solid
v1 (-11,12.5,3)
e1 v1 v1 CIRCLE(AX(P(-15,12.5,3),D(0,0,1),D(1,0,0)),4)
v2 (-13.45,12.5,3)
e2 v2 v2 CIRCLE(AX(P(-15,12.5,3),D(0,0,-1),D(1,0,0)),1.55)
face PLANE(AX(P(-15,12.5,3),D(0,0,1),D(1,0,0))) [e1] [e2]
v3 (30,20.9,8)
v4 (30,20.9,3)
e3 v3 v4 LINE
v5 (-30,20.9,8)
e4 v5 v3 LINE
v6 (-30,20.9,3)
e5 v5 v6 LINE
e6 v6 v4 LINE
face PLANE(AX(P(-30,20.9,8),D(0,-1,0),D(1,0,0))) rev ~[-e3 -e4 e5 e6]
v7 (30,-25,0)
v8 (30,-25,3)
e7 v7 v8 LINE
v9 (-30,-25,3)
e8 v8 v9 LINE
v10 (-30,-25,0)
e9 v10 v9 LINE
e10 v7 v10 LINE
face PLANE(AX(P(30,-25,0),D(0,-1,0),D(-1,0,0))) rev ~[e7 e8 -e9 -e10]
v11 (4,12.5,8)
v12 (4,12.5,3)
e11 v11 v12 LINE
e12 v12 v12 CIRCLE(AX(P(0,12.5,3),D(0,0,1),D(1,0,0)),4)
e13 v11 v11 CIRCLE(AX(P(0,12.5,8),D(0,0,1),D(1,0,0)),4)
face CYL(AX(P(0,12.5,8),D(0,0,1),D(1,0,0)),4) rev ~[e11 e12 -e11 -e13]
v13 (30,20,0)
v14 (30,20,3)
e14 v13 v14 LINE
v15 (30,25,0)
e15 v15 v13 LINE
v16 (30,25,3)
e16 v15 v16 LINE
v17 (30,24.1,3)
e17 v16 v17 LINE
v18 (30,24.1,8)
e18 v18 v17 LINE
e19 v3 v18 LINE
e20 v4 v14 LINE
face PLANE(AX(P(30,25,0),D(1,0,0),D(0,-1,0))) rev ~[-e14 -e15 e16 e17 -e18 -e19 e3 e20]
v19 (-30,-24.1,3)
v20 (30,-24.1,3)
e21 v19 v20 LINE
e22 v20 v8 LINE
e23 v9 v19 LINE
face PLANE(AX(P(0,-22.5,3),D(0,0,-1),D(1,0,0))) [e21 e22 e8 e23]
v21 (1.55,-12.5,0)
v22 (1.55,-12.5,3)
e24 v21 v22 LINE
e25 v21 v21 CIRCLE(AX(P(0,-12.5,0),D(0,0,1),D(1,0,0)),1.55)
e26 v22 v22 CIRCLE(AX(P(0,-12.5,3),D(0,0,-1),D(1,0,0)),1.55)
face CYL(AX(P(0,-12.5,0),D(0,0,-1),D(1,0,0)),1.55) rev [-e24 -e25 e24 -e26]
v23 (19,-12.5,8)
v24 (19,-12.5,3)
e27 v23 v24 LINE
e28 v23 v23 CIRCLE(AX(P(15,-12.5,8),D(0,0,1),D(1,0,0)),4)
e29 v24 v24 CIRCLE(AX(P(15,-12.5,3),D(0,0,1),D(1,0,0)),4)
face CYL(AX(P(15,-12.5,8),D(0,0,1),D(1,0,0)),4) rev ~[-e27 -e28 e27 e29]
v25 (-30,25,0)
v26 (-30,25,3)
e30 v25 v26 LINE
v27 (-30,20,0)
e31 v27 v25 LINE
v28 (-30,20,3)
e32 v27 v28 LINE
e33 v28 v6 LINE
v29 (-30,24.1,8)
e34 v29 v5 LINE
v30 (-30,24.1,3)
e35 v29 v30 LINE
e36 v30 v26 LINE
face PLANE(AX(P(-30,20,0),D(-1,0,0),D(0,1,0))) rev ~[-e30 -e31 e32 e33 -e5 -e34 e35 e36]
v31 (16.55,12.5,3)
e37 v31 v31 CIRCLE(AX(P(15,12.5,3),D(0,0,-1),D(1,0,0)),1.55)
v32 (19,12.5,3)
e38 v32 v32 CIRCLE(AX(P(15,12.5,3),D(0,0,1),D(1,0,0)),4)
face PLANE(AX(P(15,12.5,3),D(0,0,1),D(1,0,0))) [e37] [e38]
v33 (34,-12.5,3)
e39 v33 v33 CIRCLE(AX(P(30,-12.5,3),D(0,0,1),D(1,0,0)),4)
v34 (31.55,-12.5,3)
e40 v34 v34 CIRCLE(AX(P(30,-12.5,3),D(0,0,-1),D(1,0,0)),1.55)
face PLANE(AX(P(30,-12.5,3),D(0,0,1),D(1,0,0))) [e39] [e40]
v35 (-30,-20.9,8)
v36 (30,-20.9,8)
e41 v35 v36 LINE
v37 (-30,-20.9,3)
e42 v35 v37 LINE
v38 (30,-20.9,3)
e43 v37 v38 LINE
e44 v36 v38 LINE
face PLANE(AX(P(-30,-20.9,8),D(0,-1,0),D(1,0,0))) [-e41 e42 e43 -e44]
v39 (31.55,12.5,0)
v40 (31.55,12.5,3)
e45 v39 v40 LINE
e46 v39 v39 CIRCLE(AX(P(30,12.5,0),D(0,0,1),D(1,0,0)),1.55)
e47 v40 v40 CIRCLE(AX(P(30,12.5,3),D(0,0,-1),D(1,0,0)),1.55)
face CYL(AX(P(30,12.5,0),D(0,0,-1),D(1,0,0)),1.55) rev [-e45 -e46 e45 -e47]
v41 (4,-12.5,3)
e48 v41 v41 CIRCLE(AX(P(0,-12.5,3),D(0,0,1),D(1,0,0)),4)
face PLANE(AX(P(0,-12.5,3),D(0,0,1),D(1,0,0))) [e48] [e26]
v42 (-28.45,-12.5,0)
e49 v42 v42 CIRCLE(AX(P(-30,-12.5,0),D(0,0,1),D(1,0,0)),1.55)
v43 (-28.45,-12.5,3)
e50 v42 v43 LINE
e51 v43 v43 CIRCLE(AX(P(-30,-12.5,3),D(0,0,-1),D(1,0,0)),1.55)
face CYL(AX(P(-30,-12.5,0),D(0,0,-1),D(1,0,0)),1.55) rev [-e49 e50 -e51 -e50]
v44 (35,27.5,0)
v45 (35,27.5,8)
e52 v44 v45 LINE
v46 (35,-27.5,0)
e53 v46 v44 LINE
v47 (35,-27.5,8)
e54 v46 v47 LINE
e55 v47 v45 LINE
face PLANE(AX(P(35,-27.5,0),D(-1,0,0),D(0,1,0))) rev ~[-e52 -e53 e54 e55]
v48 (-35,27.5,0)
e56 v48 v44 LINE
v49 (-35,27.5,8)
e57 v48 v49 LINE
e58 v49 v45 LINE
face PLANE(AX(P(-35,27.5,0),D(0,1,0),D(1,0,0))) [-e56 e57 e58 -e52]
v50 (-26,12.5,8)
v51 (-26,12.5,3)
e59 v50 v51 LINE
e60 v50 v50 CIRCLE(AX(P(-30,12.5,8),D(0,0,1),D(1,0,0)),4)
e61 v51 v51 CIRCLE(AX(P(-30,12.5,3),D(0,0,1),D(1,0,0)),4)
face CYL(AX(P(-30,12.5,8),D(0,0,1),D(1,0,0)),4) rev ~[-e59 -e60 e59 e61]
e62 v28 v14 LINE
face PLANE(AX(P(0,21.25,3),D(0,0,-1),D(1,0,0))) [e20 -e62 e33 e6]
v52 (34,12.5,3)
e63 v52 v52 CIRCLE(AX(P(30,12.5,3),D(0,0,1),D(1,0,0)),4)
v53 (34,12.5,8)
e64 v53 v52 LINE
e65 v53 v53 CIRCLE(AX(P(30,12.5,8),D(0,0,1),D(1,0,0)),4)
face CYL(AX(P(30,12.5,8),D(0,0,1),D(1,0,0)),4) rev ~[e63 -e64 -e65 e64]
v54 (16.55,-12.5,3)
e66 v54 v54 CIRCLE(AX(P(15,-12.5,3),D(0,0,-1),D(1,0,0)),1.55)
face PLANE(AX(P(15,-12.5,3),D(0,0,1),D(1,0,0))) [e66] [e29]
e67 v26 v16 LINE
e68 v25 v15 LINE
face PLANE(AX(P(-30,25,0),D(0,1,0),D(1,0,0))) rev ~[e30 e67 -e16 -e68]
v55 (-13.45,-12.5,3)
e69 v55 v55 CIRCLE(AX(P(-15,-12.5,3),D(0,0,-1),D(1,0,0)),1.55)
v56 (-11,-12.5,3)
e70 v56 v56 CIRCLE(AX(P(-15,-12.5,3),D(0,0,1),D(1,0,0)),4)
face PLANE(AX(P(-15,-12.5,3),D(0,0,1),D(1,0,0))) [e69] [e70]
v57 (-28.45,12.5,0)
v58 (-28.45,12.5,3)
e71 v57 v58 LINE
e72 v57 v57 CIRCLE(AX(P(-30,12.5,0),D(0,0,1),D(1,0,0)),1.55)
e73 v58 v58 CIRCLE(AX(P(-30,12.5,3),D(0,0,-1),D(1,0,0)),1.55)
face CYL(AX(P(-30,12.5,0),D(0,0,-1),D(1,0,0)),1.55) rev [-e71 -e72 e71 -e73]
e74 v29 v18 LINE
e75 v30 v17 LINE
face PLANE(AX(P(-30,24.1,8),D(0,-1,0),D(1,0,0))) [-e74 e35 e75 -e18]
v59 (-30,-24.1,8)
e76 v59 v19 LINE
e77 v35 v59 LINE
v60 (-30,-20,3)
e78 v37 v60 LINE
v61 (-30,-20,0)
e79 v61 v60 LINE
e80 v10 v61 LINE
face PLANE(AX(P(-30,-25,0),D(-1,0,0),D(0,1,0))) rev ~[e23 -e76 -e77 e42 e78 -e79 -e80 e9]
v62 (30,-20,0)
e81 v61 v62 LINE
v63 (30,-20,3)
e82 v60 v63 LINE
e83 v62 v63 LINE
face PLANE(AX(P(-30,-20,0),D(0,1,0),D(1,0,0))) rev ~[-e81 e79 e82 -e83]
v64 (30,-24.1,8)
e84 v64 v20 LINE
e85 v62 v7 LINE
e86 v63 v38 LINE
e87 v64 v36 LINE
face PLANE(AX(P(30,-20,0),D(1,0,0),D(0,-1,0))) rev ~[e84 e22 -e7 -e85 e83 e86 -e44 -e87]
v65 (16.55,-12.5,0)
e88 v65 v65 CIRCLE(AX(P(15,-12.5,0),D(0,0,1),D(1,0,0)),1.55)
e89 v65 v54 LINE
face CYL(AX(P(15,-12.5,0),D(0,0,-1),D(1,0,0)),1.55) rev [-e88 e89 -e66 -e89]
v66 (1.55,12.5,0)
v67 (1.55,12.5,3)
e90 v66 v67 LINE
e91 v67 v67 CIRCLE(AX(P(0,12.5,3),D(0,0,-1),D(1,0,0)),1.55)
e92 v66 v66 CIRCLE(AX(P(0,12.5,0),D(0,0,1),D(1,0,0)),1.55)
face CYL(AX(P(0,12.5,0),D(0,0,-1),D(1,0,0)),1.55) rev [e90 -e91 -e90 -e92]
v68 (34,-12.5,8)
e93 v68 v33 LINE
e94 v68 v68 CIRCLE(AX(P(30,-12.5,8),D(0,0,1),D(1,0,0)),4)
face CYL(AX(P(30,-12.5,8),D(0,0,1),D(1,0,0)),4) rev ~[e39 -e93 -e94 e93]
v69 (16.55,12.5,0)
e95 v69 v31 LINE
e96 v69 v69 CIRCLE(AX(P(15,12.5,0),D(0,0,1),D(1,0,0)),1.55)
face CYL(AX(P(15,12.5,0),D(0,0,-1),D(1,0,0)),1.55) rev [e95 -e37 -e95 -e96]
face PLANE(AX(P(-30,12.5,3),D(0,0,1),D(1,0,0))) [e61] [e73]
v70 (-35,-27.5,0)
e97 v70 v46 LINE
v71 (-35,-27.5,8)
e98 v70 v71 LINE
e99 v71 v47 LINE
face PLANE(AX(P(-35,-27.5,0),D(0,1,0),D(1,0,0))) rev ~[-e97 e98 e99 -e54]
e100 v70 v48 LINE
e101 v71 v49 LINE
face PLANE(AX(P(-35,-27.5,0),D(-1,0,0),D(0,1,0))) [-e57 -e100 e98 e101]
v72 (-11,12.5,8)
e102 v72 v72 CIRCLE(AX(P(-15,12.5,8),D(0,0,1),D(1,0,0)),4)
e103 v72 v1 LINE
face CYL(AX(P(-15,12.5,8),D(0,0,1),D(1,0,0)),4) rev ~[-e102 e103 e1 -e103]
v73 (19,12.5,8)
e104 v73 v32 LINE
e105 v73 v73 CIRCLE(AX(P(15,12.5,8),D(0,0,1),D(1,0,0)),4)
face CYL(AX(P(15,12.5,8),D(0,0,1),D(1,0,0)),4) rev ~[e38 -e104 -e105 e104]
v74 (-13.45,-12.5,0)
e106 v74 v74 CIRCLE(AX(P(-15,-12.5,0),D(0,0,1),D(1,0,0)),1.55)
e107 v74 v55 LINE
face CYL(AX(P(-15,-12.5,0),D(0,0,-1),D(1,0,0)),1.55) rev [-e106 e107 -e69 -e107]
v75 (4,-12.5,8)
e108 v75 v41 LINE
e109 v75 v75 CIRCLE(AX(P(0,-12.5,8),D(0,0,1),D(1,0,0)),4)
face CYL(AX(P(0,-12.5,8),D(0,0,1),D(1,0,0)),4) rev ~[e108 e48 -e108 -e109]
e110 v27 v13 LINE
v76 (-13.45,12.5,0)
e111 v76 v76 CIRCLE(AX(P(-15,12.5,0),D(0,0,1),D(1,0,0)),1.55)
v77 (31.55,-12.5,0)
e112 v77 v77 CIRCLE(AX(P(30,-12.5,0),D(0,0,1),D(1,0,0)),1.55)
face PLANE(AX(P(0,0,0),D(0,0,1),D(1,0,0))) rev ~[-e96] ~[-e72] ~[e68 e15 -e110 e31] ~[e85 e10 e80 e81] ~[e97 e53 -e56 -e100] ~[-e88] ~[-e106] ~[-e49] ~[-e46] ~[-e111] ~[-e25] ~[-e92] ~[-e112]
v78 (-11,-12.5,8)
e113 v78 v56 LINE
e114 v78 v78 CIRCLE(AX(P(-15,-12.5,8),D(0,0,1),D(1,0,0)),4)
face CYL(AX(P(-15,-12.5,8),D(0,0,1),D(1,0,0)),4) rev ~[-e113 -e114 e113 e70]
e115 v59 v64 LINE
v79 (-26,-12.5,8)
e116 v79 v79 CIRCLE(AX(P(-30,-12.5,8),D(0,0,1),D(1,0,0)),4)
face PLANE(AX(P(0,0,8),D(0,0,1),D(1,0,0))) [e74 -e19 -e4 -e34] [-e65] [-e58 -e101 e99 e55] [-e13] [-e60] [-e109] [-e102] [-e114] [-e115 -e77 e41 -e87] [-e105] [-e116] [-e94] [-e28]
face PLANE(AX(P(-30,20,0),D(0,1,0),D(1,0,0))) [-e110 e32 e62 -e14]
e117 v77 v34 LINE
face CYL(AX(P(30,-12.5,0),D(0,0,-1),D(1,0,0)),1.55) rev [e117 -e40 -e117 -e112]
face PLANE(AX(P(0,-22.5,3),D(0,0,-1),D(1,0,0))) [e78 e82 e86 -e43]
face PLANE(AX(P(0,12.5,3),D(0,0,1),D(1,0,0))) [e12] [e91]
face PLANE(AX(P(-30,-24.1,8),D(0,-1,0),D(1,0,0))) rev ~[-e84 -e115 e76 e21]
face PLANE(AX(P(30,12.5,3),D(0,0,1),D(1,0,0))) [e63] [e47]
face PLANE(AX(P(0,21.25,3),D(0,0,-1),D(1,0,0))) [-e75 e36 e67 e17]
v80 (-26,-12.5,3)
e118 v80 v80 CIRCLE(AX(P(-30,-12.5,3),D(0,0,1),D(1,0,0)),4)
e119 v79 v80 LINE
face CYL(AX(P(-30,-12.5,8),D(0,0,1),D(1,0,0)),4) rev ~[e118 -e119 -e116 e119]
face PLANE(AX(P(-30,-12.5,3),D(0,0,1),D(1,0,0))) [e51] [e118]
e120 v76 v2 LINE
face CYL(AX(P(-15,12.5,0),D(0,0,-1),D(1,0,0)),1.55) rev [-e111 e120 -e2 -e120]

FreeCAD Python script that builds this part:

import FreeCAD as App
import Part
import Sketcher
from FreeCAD import Vector
Q = App.Units.Quantity


def add_polygon(sketch, points):
    """Adds a closed chain of lines whose ends are joined by coincident constraints."""
    first, n = sketch.GeometryCount, len(points)
    for a, b in zip(points, points[1:] + points[:1]):
        sketch.addGeometry(Part.LineSegment(App.Vector(*a, 0), App.Vector(*b, 0)), False)
    for i in range(n):
        sketch.addConstraint(Sketcher.Constraint("Coincident", first + i, 2, first + (i + 1) % n, 1))

doc = App.newDocument("Part")
body = doc.addObject("PartDesign::Body", "Body")

# Sketch on XY plane
sketch1 = body.newObject("Sketcher::SketchObject", "Sketch")
sketch1.AttachmentSupport = (doc.getObject("XY_Plane"), [""])
sketch1.MapMode = "FlatFace"
add_polygon(sketch1, [(-35, 27.5), (-35, -27.5), (35, -27.5), (35, 27.5)])  # lines 0-3
sketch1.addGeometry(Part.Circle(Vector(-30, -12.5, 0), Vector(0, 0, 1), 1.6), False)  # 4
sketch1.addGeometry(Part.Circle(Vector(-15, -12.5, 0), Vector(0, 0, 1), 1.6), False)  # 5
sketch1.addGeometry(Part.Circle(Vector(0, -12.5, 0), Vector(0, 0, 1), 1.6), False)  # 6
sketch1.addGeometry(Part.Circle(Vector(15, -12.5, 0), Vector(0, 0, 1), 1.6), False)  # 7
sketch1.addGeometry(Part.Circle(Vector(30, -12.5, 0), Vector(0, 0, 1), 1.6), False)  # 8
sketch1.addGeometry(Part.Circle(Vector(-30, 12.5, 0), Vector(0, 0, 1), 1.6), False)  # 9
sketch1.addGeometry(Part.Circle(Vector(-15, 12.5, 0), Vector(0, 0, 1), 1.6), False)  # 10
sketch1.addGeometry(Part.Circle(Vector(0, 12.5, 0), Vector(0, 0, 1), 1.6), False)  # 11
sketch1.addGeometry(Part.Circle(Vector(15, 12.5, 0), Vector(0, 0, 1), 1.6), False)  # 12
sketch1.addGeometry(Part.Circle(Vector(30, 12.5, 0), Vector(0, 0, 1), 1.6), False)  # 13
sketch1.addConstraint(Sketcher.Constraint("Vertical", 0))
sketch1.addConstraint(Sketcher.Constraint("Horizontal", 1))
sketch1.addConstraint(Sketcher.Constraint("Vertical", 2))
sketch1.addConstraint(Sketcher.Constraint("Horizontal", 3))
sketch1.addConstraint(Sketcher.Constraint("Equal", 4, 5))
sketch1.addConstraint(Sketcher.Constraint("Equal", 5, 6))
sketch1.addConstraint(Sketcher.Constraint("Equal", 6, 7))
sketch1.addConstraint(Sketcher.Constraint("Equal", 7, 8))
sketch1.addConstraint(Sketcher.Constraint("Equal", 8, 9))
sketch1.addConstraint(Sketcher.Constraint("Equal", 9, 10))
sketch1.addConstraint(Sketcher.Constraint("Equal", 10, 11))
sketch1.addConstraint(Sketcher.Constraint("Equal", 11, 12))
sketch1.addConstraint(Sketcher.Constraint("Equal", 12, 13))
sketch1.addConstraint(Sketcher.Constraint("Symmetric", 8, 3, 9, 3, -1, 1))
sketch1.addConstraint(Sketcher.Constraint("Symmetric", 7, 3, 10, 3, -1, 1))
sketch1.addConstraint(Sketcher.Constraint("Symmetric", 6, 3, 11, 3, -1, 1))
sketch1.addConstraint(Sketcher.Constraint("Symmetric", 5, 3, 12, 3, -1, 1))
sketch1.addConstraint(Sketcher.Constraint("Symmetric", 4, 3, 13, 3, -1, 1))
sketch1.addConstraint(Sketcher.Constraint("Symmetric", 0, 2, 2, 2, -1, 1))
sketch1.addConstraint(Sketcher.Constraint("Symmetric", 5, 3, 7, 3, -2))
sketch1.addConstraint(Sketcher.Constraint("Symmetric", 4, 3, 8, 3, -2))
sketch1.addConstraint(Sketcher.Constraint("PointOnObject", 6, 3, -2))
sketch1.addConstraint(Sketcher.Constraint("Horizontal", 4, 3, 5, 3))
sketch1.addConstraint(Sketcher.Constraint("Horizontal", 5, 3, 6, 3))
sketch1.addConstraint(Sketcher.Constraint("Diameter", 4, Q("3.1 mm")))
sketch1.addConstraint(Sketcher.Constraint("DistanceX", 1, 1, 1, 2, Q("70 mm")))
sketch1.addConstraint(Sketcher.Constraint("DistanceY", 0, 2, 0, 1, Q("55 mm")))
sketch1.addConstraint(Sketcher.Constraint("DistanceX", 4, 3, -1, 1, Q("30 mm")))
sketch1.addConstraint(Sketcher.Constraint("DistanceX", 5, 3, -1, 1, Q("15 mm")))
sketch1.addConstraint(Sketcher.Constraint("DistanceY", 4, 3, 9, 3, Q("25 mm")))
pad1 = body.newObject("PartDesign::Pad", "Pad")
pad1.Profile = sketch1
pad1.Length = 8

# Sketch on XY plane
sketch2 = body.newObject("Sketcher::SketchObject", "Sketch001")
sketch2.AttachmentSupport = (doc.getObject("XY_Plane"), [""])
sketch2.MapMode = "FlatFace"
sketch2.AttachmentOffset = App.Placement(Vector(0, 0, 8), App.Rotation())
sketch2.addGeometry(Part.Circle(Vector(0, -12.5, 0), Vector(0, 0, 1), 4), False)
sketch2.addGeometry(Part.Circle(Vector(0, 12.5, 0), Vector(0, 0, 1), 4), False)
sketch2.addGeometry(Part.Circle(Vector(15, -12.5, 0), Vector(0, 0, 1), 4), False)
sketch2.addGeometry(Part.Circle(Vector(30, -12.5, 0), Vector(0, 0, 1), 4), False)
sketch2.addGeometry(Part.Circle(Vector(-15, -12.5, 0), Vector(0, 0, 1), 4), False)
sketch2.addGeometry(Part.Circle(Vector(-30, -12.5, 0), Vector(0, 0, 1), 4), False)
sketch2.addGeometry(Part.Circle(Vector(15, 12.5, 0), Vector(0, 0, 1), 4), False)
sketch2.addGeometry(Part.Circle(Vector(30, 12.5, 0), Vector(0, 0, 1), 4), False)
sketch2.addGeometry(Part.Circle(Vector(-15, 12.5, 0), Vector(0, 0, 1), 4), False)
sketch2.addGeometry(Part.Circle(Vector(-30, 12.5, 0), Vector(0, 0, 1), 4), False)
sketch2.addConstraint(Sketcher.Constraint("Equal", 0, 1))
sketch2.addConstraint(Sketcher.Constraint("Equal", 1, 2))
sketch2.addConstraint(Sketcher.Constraint("Equal", 2, 3))
sketch2.addConstraint(Sketcher.Constraint("Equal", 3, 4))
sketch2.addConstraint(Sketcher.Constraint("Equal", 4, 5))
sketch2.addConstraint(Sketcher.Constraint("Equal", 5, 6))
sketch2.addConstraint(Sketcher.Constraint("Equal", 6, 7))
sketch2.addConstraint(Sketcher.Constraint("Equal", 7, 8))
sketch2.addConstraint(Sketcher.Constraint("Equal", 8, 9))
sketch2.addConstraint(Sketcher.Constraint("Symmetric", 0, 3, 1, 3, -1, 1))
sketch2.addConstraint(Sketcher.Constraint("Symmetric", 4, 3, 6, 3, -1, 1))
sketch2.addConstraint(Sketcher.Constraint("Symmetric", 5, 3, 7, 3, -1, 1))
sketch2.addConstraint(Sketcher.Constraint("Symmetric", 2, 3, 8, 3, -1, 1))
sketch2.addConstraint(Sketcher.Constraint("Symmetric", 3, 3, 9, 3, -1, 1))
sketch2.addConstraint(Sketcher.Constraint("Symmetric", 2, 3, 4, 3, -2))
sketch2.addConstraint(Sketcher.Constraint("Symmetric", 3, 3, 5, 3, -2))
sketch2.addConstraint(Sketcher.Constraint("PointOnObject", 0, 3, -2))
sketch2.addConstraint(Sketcher.Constraint("Horizontal", 0, 3, 2, 3))
sketch2.addConstraint(Sketcher.Constraint("Horizontal", 2, 3, 3, 3))
sketch2.addConstraint(Sketcher.Constraint("Diameter", 0, Q("8 mm")))
sketch2.addConstraint(Sketcher.Constraint("DistanceX", -1, 1, 2, 3, Q("15 mm")))
sketch2.addConstraint(Sketcher.Constraint("DistanceX", -1, 1, 3, 3, Q("30 mm")))
sketch2.addConstraint(Sketcher.Constraint("DistanceY", 0, 3, 1, 3, Q("25 mm")))
pocket1 = body.newObject("PartDesign::Pocket", "Pocket")
pocket1.Profile = sketch2
pocket1.Length = 5

# Sketch on XY plane
sketch3 = body.newObject("Sketcher::SketchObject", "Sketch002")
sketch3.AttachmentSupport = (doc.getObject("XY_Plane"), [""])
sketch3.MapMode = "FlatFace"
sketch3.AttachmentOffset = App.Placement(Vector(0, 0, 8), App.Rotation())
add_polygon(sketch3, [(-30, -20.9), (-30, -24.1), (30, -24.1), (30, -20.9)])  # lines 0-3
add_polygon(sketch3, [(-30, 20.9), (30, 20.9), (30, 24.1), (-30, 24.1)])  # lines 4-7
sketch3.addConstraint(Sketcher.Constraint("Vertical", 0))
sketch3.addConstraint(Sketcher.Constraint("Horizontal", 1))
sketch3.addConstraint(Sketcher.Constraint("Vertical", 2))
sketch3.addConstraint(Sketcher.Constraint("Horizontal", 3))
sketch3.addConstraint(Sketcher.Constraint("Horizontal", 4))
sketch3.addConstraint(Sketcher.Constraint("Vertical", 5))
sketch3.addConstraint(Sketcher.Constraint("Horizontal", 6))
sketch3.addConstraint(Sketcher.Constraint("Vertical", 7))
sketch3.addConstraint(Sketcher.Constraint("Symmetric", 3, 2, 4, 2, -1, 1))
sketch3.addConstraint(Sketcher.Constraint("Symmetric", 1, 2, 6, 2, -1, 1))
sketch3.addConstraint(Sketcher.Constraint("Vertical", 2, 2, 4, 2))
sketch3.addConstraint(Sketcher.Constraint("DistanceX", 1, 1, 1, 2, Q("60 mm")))
sketch3.addConstraint(Sketcher.Constraint("DistanceY", 0, 2, 0, 1, Q("3.2 mm")))
sketch3.addConstraint(Sketcher.Constraint("DistanceY", 1, 2, 4, 2, Q("45 mm")))
pocket2 = body.newObject("PartDesign::Pocket", "Pocket001")
pocket2.Profile = sketch3
pocket2.Length = 5

# Sketch on XY plane
sketch4 = body.newObject("Sketcher::SketchObject", "Sketch003")
sketch4.AttachmentSupport = (doc.getObject("XY_Plane"), [""])
sketch4.MapMode = "FlatFace"
add_polygon(sketch4, [(-30, -20), (30, -20), (30, -25), (-30, -25)])  # lines 0-3
add_polygon(sketch4, [(-30, 20), (-30, 25), (30, 25), (30, 20)])  # lines 4-7
sketch4.addConstraint(Sketcher.Constraint("Horizontal", 0))
sketch4.addConstraint(Sketcher.Constraint("Vertical", 1))
sketch4.addConstraint(Sketcher.Constraint("Horizontal", 2))
sketch4.addConstraint(Sketcher.Constraint("Vertical", 3))
sketch4.addConstraint(Sketcher.Constraint("Vertical", 4))
sketch4.addConstraint(Sketcher.Constraint("Horizontal", 5))
sketch4.addConstraint(Sketcher.Constraint("Vertical", 6))
sketch4.addConstraint(Sketcher.Constraint("Horizontal", 7))
sketch4.addConstraint(Sketcher.Constraint("Symmetric", 1, 2, 4, 2, -1, 1))
sketch4.addConstraint(Sketcher.Constraint("Symmetric", 3, 2, 6, 2, -1, 1))
sketch4.addConstraint(Sketcher.Constraint("Vertical", 3, 2, 4, 2))
sketch4.addConstraint(Sketcher.Constraint("DistanceX", 0, 1, 0, 2, Q("60 mm")))
sketch4.addConstraint(Sketcher.Constraint("DistanceY", 1, 2, 1, 1, Q("5 mm")))
sketch4.addConstraint(Sketcher.Constraint("DistanceY", 0, 2, -1, 1, Q("20 mm")))
pocket3 = body.newObject("PartDesign::Pocket", "Pocket002")
pocket3.Profile = sketch4
pocket3.Length = 3
pocket3.Reversed = True

doc.recompute()
